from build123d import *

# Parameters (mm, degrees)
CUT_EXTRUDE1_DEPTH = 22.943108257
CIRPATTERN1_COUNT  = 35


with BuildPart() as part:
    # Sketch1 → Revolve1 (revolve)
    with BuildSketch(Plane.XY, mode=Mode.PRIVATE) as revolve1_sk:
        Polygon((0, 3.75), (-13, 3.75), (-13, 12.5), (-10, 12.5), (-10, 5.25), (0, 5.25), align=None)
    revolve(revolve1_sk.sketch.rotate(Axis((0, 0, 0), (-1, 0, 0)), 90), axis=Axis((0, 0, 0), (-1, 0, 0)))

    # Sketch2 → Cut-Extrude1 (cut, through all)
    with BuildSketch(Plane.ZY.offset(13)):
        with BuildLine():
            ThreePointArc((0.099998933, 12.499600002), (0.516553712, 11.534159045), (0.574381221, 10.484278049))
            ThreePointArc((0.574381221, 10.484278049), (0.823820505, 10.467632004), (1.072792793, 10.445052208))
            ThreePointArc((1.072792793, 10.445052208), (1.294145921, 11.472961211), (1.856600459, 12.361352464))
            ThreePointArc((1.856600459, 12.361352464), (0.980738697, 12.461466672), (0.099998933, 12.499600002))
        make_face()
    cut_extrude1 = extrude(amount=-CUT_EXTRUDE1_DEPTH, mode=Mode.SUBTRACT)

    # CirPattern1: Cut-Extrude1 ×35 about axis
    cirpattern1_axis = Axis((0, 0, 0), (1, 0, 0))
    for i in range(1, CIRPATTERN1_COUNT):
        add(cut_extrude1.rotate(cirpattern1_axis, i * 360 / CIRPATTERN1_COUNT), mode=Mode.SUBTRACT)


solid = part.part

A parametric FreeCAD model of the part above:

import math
import FreeCAD as App
import Part
import Sketcher

V = App.Vector
Q = App.Units.Quantity


def add_polygon(sketch, points):
    """Adds a closed chain of lines whose ends are joined by coincident constraints."""
    first, n = sketch.GeometryCount, len(points)
    for a, b in zip(points, points[1:] + points[:1]):
        sketch.addGeometry(Part.LineSegment(App.Vector(*a, 0), App.Vector(*b, 0)), False)
    for i in range(n):
        sketch.addConstraint(Sketcher.Constraint("Coincident", first + i, 2, first + (i + 1) % n, 1))

doc = App.newDocument("Part")
body = doc.addObject("PartDesign::Body", "Body")

# Sketch on XY plane
sketch1 = body.newObject("Sketcher::SketchObject", "Sketch")
sketch1.AttachmentSupport = (doc.getObject("XY_Plane"), [""])
sketch1.MapMode = "FlatFace"
add_polygon(sketch1, [(-13, 3.8), (0, 3.8), (0, 5.2), (-10, 5.2), (-10, 12.5), (-13, 12.5)])  # lines 0-5
sketch1.addConstraint([
    Sketcher.Constraint("Horizontal", 0),
    Sketcher.Constraint("Vertical", 1),
    Sketcher.Constraint("Horizontal", 2),
    Sketcher.Constraint("Vertical", 3),
    Sketcher.Constraint("Horizontal", 4),
    Sketcher.Constraint("Vertical", 5),
    Sketcher.Constraint("PointOnObject", 0, 2, -2),
    Sketcher.Constraint("DistanceX", 0, 1, 0, 2, Q("13 mm")),
    Sketcher.Constraint("DistanceX", 2, 2, 2, 1, Q("10 mm")),
    Sketcher.Constraint("DistanceY", 1, 1, 1, 2, Q("1.5 mm")),
    Sketcher.Constraint("DistanceY", 3, 1, 3, 2, Q("7.25 mm")),
    Sketcher.Constraint("DistanceY", -1, 1, 3, 2, Q("12.5 mm")),
])
revolution = body.newObject("PartDesign::Revolution", "Revolution")
revolution.Profile = sketch1
revolution.ReferenceAxis = (sketch1, ["H_Axis"])
revolution.Angle = 360

# Sketch on YZ plane
sketch2 = body.newObject("Sketcher::SketchObject", "Sketch001")
sketch2.AttachmentSupport = (doc.getObject("YZ_Plane"), [""])
sketch2.MapMode = "FlatFace"
sketch2.AttachmentOffset = App.Placement(V(0, 0, -13), App.Rotation())
sketch2.addGeometry([
    Part.ArcOfCircle(Part.Circle(V(10.85, -2.4, 0), V(0, 0, 1), 3), math.radians(57), math.radians(97)),
    Part.ArcOfCircle(Part.Circle(V(0, 0, 0), V(0, 0, 1), 10.5), math.radians(3.14), math.radians(5.86)),
    Part.ArcOfCircle(Part.Circle(V(10.34, 4.07, 0), V(0, 0, 1), 3), math.radians(-88), math.radians(-48)),
    Part.ArcOfCircle(Part.Circle(V(0, 0, 0), V(0, 0, 1), 12.5), math.radians(0.46), math.radians(8.54)),
], False)
sketch2.addConstraint([
    Sketcher.Constraint("Coincident", 0, 2, 1, 1),
    Sketcher.Constraint("Coincident", 1, 2, 2, 1),
    Sketcher.Constraint("Coincident", 2, 2, 3, 2),
    Sketcher.Constraint("Coincident", 3, 1, 0, 1),
    Sketcher.Constraint("Coincident", 1, 3, -1, 1),
    Sketcher.Constraint("Coincident", 3, 3, -1, 1),
    Sketcher.Constraint("Equal", 0, 2),
    Sketcher.Constraint("Radius", 0, Q("3 mm")),
    Sketcher.Constraint("Radius", 1, Q("10.500001 mm")),
    Sketcher.Constraint("Radius", 3, Q("12.5 mm")),
    Sketcher.Constraint("DistanceY", -1, 1, 3, 1, Q("0.099999 mm")),
    Sketcher.Constraint("DistanceY", -1, 1, 2, 2, Q("1.8566 mm")),
    Sketcher.Constraint("DistanceX", 1, 2, 2, 2, Q("1.9163 mm")),
    Sketcher.Constraint("DistanceX", -1, 1, 0, 3, Q("10.846782 mm")),
])
pocket1 = body.newObject("PartDesign::Pocket", "Pocket")
pocket1.Profile = sketch2
pocket1.Type = "ThroughAll"
pocket1.Reversed = True
doc.recompute()

polarpattern = body.newObject("PartDesign::PolarPattern", "PolarPattern")
polarpattern.Originals = [pocket1]
polarpattern.Axis = (doc.getObject("X_Axis"), [""])
polarpattern.Angle = 360
polarpattern.Occurrences = 35
body.Tip = polarpattern

doc.recompute()
